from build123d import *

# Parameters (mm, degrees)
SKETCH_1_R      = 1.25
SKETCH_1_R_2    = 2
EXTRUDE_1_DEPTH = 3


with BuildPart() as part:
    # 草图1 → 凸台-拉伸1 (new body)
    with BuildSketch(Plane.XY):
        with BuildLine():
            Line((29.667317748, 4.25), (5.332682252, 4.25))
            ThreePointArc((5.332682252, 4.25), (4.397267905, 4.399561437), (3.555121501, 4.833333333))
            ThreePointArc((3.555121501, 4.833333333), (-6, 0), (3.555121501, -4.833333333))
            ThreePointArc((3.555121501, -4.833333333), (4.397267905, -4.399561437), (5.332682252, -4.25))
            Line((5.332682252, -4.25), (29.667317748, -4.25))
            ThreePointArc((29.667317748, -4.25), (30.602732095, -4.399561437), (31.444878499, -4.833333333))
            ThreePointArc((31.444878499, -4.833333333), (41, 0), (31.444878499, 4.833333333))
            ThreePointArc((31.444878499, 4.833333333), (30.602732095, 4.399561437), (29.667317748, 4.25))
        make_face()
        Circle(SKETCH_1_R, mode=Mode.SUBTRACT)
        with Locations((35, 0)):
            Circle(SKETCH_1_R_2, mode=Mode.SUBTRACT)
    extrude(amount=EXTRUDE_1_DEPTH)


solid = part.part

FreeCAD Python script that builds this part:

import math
import FreeCAD as App
import Part
import Sketcher
from FreeCAD import Vector
Q = App.Units.Quantity

doc = App.newDocument("Part")
body = doc.addObject("PartDesign::Body", "Body")

sketch1 = body.newObject("Sketcher::SketchObject", "Sketch")
sketch1.AttachmentSupport = (doc.getObject("XY_Plane"), [""])
sketch1.MapMode = "FlatFace"
sketch1.addGeometry(Part.LineSegment(Vector(29.7, 4.2, 0), Vector(5.3, 4.2, 0)), False)
sketch1.addGeometry(Part.ArcOfCircle(Part.Circle(Vector(5.3, 7.2, 0), Vector(0, 0, 1), 3), math.radians(-126), math.radians(-90)), False)
sketch1.addGeometry(Part.ArcOfCircle(Part.Circle(Vector(0, 0, 0), Vector(0, 0, 1), 6), math.radians(54), math.radians(306)), False)
sketch1.addGeometry(Part.ArcOfCircle(Part.Circle(Vector(5.3, -7.2, 0), Vector(0, 0, 1), 3), math.radians(90), math.radians(126)), False)
sketch1.addGeometry(Part.LineSegment(Vector(5.3, -4.2, 0), Vector(29.7, -4.2, 0)), False)
sketch1.addGeometry(Part.ArcOfCircle(Part.Circle(Vector(29.7, -7.2, 0), Vector(0, 0, 1), 3), math.radians(54), math.radians(90)), False)
sketch1.addGeometry(Part.ArcOfCircle(Part.Circle(Vector(35, 0, 0), Vector(0, 0, 1), 6), math.radians(-126), math.radians(126)), False)
sketch1.addGeometry(Part.ArcOfCircle(Part.Circle(Vector(29.7, 7.2, 0), Vector(0, 0, 1), 3), math.radians(-90), math.radians(-54)), False)
sketch1.addGeometry(Part.Circle(Vector(0, 0, 0), Vector(0, 0, 1), 1.2), False)
sketch1.addGeometry(Part.Circle(Vector(35, 0, 0), Vector(0, 0, 1), 2), False)
sketch1.addConstraint(Sketcher.Constraint("Tangent", 0, 2, 1, 2))
sketch1.addConstraint(Sketcher.Constraint("Tangent", 1, 1, 2, 1))
sketch1.addConstraint(Sketcher.Constraint("Tangent", 2, 2, 3, 2))
sketch1.addConstraint(Sketcher.Constraint("Tangent", 3, 1, 4, 1))
sketch1.addConstraint(Sketcher.Constraint("Tangent", 4, 2, 5, 2))
sketch1.addConstraint(Sketcher.Constraint("Tangent", 5, 1, 6, 1))
sketch1.addConstraint(Sketcher.Constraint("Tangent", 6, 2, 7, 2))
sketch1.addConstraint(Sketcher.Constraint("Tangent", 7, 1, 0, 1))
sketch1.addConstraint(Sketcher.Constraint("Horizontal", 0))
sketch1.addConstraint(Sketcher.Constraint("Horizontal", 4))
sketch1.addConstraint(Sketcher.Constraint("Coincident", 2, 3, -1, 1))
sketch1.addConstraint(Sketcher.Constraint("Coincident", 8, 3, -1, 1))
sketch1.addConstraint(Sketcher.Constraint("Coincident", 9, 3, 6, 3))
sketch1.addConstraint(Sketcher.Constraint("Equal", 1, 3))
sketch1.addConstraint(Sketcher.Constraint("Equal", 3, 5))
sketch1.addConstraint(Sketcher.Constraint("Equal", 2, 6))
sketch1.addConstraint(Sketcher.Constraint("Equal", 5, 7))
sketch1.addConstraint(Sketcher.Constraint("Symmetric", 5, 3, 7, 3, -1))
sketch1.addConstraint(Sketcher.Constraint("Diameter", 9, Q("4 mm")))
sketch1.addConstraint(Sketcher.Constraint("Radius", 1, Q("3 mm")))
sketch1.addConstraint(Sketcher.Constraint("Radius", 2, Q("6 mm")))
sketch1.addConstraint(Sketcher.Constraint("Diameter", 8, Q("2.5 mm")))
sketch1.addConstraint(Sketcher.Constraint("DistanceX", -1, 1, 6, 3, Q("35 mm")))
sketch1.addConstraint(Sketcher.Constraint("DistanceY", 3, 3, 1, 3, Q("14.5 mm")))
pad1 = body.newObject("PartDesign::Pad", "Pad")
pad1.Profile = sketch1
pad1.Length = 3

doc.recompute()
